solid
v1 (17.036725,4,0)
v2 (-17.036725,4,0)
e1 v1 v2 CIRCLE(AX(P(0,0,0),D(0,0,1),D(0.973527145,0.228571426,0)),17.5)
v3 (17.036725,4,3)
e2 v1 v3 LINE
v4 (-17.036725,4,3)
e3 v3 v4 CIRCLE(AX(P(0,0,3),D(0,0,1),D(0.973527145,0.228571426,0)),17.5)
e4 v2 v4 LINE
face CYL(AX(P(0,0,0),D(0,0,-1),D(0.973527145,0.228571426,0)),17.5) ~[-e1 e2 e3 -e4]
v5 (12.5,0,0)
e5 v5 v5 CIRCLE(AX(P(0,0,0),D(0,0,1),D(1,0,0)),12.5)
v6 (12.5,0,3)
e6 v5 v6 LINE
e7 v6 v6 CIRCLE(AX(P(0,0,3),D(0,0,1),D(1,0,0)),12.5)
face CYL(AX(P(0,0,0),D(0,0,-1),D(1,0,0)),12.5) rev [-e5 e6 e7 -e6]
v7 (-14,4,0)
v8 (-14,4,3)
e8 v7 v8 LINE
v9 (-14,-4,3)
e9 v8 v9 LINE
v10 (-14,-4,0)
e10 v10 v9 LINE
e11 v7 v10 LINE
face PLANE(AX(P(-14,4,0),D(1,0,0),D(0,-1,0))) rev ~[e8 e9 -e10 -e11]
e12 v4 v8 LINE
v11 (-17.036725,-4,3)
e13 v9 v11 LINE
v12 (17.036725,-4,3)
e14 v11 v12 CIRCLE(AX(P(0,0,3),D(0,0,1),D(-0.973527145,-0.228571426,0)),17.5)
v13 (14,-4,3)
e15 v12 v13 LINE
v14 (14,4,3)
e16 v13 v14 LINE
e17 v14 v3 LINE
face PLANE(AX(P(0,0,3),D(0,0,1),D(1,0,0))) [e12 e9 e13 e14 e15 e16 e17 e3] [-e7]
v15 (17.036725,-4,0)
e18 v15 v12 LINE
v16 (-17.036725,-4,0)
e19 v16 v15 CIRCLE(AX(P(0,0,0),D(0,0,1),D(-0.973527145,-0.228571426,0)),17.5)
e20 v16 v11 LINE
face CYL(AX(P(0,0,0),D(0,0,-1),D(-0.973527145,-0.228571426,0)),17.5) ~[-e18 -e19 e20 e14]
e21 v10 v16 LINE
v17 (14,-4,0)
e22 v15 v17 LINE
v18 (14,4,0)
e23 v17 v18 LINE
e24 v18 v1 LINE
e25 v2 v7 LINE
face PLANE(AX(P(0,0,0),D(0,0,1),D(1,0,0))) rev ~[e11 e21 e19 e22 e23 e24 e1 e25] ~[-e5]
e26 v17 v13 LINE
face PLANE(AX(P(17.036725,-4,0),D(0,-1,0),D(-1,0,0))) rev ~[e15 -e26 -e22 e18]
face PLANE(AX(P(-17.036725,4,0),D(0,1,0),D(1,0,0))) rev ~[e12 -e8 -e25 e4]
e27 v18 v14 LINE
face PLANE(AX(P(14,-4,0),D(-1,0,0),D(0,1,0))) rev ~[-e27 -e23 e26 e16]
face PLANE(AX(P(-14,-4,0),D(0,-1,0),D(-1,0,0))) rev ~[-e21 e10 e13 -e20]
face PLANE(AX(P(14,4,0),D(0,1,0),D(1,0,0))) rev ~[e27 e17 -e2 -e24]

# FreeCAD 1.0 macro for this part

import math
import FreeCAD as App
import Part
import Sketcher

doc = App.newDocument("Part")
body = doc.addObject("PartDesign::Body", "Body")

sketch1 = body.newObject("Sketcher::SketchObject", "Sketch")
sketch1.AttachmentSupport = (doc.getObject("XY_Plane"), [""])
sketch1.MapMode = "FlatFace"
sketch1.addGeometry(Part.LineSegment(App.Vector(-14, -4, 0), App.Vector(-17, -4, 0)), False)
sketch1.addGeometry(Part.ArcOfCircle(Part.Circle(App.Vector(0, 0, 0), App.Vector(0, 0, 1), 17.5), math.radians(-167), math.radians(-13)), False)
sketch1.addGeometry(Part.LineSegment(App.Vector(17, -4, 0), App.Vector(14, -4, 0)), False)
sketch1.addGeometry(Part.LineSegment(App.Vector(14, -4, 0), App.Vector(14, 4, 0)), False)
sketch1.addGeometry(Part.LineSegment(App.Vector(14, 4, 0), App.Vector(17, 4, 0)), False)
sketch1.addGeometry(Part.ArcOfCircle(Part.Circle(App.Vector(0, 0, 0), App.Vector(0, 0, 1), 17.5), math.radians(13), math.radians(167)), False)
sketch1.addGeometry(Part.LineSegment(App.Vector(-17, 4, 0), App.Vector(-14, 4, 0)), False)
sketch1.addGeometry(Part.LineSegment(App.Vector(-14, 4, 0), App.Vector(-14, -4, 0)), False)
sketch1.addGeometry(Part.Circle(App.Vector(0, 0, 0), App.Vector(0, 0, 1), 12.5), False)
sketch1.addConstraint(Sketcher.Constraint("Coincident", 0, 2, 1, 1))
sketch1.addConstraint(Sketcher.Constraint("Coincident", 1, 2, 2, 1))
sketch1.addConstraint(Sketcher.Constraint("Coincident", 2, 2, 3, 1))
sketch1.addConstraint(Sketcher.Constraint("Coincident", 3, 2, 4, 1))
sketch1.addConstraint(Sketcher.Constraint("Coincident", 4, 2, 5, 1))
sketch1.addConstraint(Sketcher.Constraint("Coincident", 5, 2, 6, 1))
sketch1.addConstraint(Sketcher.Constraint("Coincident", 6, 2, 7, 1))
sketch1.addConstraint(Sketcher.Constraint("Coincident", 7, 2, 0, 1))
sketch1.addConstraint(Sketcher.Constraint("Horizontal", 0))
sketch1.addConstraint(Sketcher.Constraint("Horizontal", 2))
sketch1.addConstraint(Sketcher.Constraint("Vertical", 3))
sketch1.addConstraint(Sketcher.Constraint("Horizontal", 4))
sketch1.addConstraint(Sketcher.Constraint("Horizontal", 6))
sketch1.addConstraint(Sketcher.Constraint("Vertical", 7))
sketch1.addConstraint(Sketcher.Constraint("Coincident", 1, 3, -1, 1))
sketch1.addConstraint(Sketcher.Constraint("Coincident", 5, 3, -1, 1))
sketch1.addConstraint(Sketcher.Constraint("Coincident", 8, 3, -1, 1))
sketch1.addConstraint(Sketcher.Constraint("Equal", 1, 5))
sketch1.addConstraint(Sketcher.Constraint("Symmetric", 2, 2, 6, 2, -1, 1))
sketch1.addConstraint(Sketcher.Constraint("Horizontal", 0, 2, 1, 2))
sketch1.addConstraint(Sketcher.Constraint("Horizontal", 4, 2, 5, 2))
sketch1.addConstraint(Sketcher.Constraint("Diameter", 8, 25.0))
sketch1.addConstraint(Sketcher.Constraint("Radius", 1, 17.5))
sketch1.addConstraint(Sketcher.Constraint("DistanceY", 3, 1, 3, 2, 8.0))
sketch1.addConstraint(Sketcher.Constraint("DistanceX", -1, 1, 2, 2, 14.0))
pad1 = body.newObject("PartDesign::Pad", "Pad")
pad1.Profile = sketch1
pad1.Length = 3

doc.recompute()
